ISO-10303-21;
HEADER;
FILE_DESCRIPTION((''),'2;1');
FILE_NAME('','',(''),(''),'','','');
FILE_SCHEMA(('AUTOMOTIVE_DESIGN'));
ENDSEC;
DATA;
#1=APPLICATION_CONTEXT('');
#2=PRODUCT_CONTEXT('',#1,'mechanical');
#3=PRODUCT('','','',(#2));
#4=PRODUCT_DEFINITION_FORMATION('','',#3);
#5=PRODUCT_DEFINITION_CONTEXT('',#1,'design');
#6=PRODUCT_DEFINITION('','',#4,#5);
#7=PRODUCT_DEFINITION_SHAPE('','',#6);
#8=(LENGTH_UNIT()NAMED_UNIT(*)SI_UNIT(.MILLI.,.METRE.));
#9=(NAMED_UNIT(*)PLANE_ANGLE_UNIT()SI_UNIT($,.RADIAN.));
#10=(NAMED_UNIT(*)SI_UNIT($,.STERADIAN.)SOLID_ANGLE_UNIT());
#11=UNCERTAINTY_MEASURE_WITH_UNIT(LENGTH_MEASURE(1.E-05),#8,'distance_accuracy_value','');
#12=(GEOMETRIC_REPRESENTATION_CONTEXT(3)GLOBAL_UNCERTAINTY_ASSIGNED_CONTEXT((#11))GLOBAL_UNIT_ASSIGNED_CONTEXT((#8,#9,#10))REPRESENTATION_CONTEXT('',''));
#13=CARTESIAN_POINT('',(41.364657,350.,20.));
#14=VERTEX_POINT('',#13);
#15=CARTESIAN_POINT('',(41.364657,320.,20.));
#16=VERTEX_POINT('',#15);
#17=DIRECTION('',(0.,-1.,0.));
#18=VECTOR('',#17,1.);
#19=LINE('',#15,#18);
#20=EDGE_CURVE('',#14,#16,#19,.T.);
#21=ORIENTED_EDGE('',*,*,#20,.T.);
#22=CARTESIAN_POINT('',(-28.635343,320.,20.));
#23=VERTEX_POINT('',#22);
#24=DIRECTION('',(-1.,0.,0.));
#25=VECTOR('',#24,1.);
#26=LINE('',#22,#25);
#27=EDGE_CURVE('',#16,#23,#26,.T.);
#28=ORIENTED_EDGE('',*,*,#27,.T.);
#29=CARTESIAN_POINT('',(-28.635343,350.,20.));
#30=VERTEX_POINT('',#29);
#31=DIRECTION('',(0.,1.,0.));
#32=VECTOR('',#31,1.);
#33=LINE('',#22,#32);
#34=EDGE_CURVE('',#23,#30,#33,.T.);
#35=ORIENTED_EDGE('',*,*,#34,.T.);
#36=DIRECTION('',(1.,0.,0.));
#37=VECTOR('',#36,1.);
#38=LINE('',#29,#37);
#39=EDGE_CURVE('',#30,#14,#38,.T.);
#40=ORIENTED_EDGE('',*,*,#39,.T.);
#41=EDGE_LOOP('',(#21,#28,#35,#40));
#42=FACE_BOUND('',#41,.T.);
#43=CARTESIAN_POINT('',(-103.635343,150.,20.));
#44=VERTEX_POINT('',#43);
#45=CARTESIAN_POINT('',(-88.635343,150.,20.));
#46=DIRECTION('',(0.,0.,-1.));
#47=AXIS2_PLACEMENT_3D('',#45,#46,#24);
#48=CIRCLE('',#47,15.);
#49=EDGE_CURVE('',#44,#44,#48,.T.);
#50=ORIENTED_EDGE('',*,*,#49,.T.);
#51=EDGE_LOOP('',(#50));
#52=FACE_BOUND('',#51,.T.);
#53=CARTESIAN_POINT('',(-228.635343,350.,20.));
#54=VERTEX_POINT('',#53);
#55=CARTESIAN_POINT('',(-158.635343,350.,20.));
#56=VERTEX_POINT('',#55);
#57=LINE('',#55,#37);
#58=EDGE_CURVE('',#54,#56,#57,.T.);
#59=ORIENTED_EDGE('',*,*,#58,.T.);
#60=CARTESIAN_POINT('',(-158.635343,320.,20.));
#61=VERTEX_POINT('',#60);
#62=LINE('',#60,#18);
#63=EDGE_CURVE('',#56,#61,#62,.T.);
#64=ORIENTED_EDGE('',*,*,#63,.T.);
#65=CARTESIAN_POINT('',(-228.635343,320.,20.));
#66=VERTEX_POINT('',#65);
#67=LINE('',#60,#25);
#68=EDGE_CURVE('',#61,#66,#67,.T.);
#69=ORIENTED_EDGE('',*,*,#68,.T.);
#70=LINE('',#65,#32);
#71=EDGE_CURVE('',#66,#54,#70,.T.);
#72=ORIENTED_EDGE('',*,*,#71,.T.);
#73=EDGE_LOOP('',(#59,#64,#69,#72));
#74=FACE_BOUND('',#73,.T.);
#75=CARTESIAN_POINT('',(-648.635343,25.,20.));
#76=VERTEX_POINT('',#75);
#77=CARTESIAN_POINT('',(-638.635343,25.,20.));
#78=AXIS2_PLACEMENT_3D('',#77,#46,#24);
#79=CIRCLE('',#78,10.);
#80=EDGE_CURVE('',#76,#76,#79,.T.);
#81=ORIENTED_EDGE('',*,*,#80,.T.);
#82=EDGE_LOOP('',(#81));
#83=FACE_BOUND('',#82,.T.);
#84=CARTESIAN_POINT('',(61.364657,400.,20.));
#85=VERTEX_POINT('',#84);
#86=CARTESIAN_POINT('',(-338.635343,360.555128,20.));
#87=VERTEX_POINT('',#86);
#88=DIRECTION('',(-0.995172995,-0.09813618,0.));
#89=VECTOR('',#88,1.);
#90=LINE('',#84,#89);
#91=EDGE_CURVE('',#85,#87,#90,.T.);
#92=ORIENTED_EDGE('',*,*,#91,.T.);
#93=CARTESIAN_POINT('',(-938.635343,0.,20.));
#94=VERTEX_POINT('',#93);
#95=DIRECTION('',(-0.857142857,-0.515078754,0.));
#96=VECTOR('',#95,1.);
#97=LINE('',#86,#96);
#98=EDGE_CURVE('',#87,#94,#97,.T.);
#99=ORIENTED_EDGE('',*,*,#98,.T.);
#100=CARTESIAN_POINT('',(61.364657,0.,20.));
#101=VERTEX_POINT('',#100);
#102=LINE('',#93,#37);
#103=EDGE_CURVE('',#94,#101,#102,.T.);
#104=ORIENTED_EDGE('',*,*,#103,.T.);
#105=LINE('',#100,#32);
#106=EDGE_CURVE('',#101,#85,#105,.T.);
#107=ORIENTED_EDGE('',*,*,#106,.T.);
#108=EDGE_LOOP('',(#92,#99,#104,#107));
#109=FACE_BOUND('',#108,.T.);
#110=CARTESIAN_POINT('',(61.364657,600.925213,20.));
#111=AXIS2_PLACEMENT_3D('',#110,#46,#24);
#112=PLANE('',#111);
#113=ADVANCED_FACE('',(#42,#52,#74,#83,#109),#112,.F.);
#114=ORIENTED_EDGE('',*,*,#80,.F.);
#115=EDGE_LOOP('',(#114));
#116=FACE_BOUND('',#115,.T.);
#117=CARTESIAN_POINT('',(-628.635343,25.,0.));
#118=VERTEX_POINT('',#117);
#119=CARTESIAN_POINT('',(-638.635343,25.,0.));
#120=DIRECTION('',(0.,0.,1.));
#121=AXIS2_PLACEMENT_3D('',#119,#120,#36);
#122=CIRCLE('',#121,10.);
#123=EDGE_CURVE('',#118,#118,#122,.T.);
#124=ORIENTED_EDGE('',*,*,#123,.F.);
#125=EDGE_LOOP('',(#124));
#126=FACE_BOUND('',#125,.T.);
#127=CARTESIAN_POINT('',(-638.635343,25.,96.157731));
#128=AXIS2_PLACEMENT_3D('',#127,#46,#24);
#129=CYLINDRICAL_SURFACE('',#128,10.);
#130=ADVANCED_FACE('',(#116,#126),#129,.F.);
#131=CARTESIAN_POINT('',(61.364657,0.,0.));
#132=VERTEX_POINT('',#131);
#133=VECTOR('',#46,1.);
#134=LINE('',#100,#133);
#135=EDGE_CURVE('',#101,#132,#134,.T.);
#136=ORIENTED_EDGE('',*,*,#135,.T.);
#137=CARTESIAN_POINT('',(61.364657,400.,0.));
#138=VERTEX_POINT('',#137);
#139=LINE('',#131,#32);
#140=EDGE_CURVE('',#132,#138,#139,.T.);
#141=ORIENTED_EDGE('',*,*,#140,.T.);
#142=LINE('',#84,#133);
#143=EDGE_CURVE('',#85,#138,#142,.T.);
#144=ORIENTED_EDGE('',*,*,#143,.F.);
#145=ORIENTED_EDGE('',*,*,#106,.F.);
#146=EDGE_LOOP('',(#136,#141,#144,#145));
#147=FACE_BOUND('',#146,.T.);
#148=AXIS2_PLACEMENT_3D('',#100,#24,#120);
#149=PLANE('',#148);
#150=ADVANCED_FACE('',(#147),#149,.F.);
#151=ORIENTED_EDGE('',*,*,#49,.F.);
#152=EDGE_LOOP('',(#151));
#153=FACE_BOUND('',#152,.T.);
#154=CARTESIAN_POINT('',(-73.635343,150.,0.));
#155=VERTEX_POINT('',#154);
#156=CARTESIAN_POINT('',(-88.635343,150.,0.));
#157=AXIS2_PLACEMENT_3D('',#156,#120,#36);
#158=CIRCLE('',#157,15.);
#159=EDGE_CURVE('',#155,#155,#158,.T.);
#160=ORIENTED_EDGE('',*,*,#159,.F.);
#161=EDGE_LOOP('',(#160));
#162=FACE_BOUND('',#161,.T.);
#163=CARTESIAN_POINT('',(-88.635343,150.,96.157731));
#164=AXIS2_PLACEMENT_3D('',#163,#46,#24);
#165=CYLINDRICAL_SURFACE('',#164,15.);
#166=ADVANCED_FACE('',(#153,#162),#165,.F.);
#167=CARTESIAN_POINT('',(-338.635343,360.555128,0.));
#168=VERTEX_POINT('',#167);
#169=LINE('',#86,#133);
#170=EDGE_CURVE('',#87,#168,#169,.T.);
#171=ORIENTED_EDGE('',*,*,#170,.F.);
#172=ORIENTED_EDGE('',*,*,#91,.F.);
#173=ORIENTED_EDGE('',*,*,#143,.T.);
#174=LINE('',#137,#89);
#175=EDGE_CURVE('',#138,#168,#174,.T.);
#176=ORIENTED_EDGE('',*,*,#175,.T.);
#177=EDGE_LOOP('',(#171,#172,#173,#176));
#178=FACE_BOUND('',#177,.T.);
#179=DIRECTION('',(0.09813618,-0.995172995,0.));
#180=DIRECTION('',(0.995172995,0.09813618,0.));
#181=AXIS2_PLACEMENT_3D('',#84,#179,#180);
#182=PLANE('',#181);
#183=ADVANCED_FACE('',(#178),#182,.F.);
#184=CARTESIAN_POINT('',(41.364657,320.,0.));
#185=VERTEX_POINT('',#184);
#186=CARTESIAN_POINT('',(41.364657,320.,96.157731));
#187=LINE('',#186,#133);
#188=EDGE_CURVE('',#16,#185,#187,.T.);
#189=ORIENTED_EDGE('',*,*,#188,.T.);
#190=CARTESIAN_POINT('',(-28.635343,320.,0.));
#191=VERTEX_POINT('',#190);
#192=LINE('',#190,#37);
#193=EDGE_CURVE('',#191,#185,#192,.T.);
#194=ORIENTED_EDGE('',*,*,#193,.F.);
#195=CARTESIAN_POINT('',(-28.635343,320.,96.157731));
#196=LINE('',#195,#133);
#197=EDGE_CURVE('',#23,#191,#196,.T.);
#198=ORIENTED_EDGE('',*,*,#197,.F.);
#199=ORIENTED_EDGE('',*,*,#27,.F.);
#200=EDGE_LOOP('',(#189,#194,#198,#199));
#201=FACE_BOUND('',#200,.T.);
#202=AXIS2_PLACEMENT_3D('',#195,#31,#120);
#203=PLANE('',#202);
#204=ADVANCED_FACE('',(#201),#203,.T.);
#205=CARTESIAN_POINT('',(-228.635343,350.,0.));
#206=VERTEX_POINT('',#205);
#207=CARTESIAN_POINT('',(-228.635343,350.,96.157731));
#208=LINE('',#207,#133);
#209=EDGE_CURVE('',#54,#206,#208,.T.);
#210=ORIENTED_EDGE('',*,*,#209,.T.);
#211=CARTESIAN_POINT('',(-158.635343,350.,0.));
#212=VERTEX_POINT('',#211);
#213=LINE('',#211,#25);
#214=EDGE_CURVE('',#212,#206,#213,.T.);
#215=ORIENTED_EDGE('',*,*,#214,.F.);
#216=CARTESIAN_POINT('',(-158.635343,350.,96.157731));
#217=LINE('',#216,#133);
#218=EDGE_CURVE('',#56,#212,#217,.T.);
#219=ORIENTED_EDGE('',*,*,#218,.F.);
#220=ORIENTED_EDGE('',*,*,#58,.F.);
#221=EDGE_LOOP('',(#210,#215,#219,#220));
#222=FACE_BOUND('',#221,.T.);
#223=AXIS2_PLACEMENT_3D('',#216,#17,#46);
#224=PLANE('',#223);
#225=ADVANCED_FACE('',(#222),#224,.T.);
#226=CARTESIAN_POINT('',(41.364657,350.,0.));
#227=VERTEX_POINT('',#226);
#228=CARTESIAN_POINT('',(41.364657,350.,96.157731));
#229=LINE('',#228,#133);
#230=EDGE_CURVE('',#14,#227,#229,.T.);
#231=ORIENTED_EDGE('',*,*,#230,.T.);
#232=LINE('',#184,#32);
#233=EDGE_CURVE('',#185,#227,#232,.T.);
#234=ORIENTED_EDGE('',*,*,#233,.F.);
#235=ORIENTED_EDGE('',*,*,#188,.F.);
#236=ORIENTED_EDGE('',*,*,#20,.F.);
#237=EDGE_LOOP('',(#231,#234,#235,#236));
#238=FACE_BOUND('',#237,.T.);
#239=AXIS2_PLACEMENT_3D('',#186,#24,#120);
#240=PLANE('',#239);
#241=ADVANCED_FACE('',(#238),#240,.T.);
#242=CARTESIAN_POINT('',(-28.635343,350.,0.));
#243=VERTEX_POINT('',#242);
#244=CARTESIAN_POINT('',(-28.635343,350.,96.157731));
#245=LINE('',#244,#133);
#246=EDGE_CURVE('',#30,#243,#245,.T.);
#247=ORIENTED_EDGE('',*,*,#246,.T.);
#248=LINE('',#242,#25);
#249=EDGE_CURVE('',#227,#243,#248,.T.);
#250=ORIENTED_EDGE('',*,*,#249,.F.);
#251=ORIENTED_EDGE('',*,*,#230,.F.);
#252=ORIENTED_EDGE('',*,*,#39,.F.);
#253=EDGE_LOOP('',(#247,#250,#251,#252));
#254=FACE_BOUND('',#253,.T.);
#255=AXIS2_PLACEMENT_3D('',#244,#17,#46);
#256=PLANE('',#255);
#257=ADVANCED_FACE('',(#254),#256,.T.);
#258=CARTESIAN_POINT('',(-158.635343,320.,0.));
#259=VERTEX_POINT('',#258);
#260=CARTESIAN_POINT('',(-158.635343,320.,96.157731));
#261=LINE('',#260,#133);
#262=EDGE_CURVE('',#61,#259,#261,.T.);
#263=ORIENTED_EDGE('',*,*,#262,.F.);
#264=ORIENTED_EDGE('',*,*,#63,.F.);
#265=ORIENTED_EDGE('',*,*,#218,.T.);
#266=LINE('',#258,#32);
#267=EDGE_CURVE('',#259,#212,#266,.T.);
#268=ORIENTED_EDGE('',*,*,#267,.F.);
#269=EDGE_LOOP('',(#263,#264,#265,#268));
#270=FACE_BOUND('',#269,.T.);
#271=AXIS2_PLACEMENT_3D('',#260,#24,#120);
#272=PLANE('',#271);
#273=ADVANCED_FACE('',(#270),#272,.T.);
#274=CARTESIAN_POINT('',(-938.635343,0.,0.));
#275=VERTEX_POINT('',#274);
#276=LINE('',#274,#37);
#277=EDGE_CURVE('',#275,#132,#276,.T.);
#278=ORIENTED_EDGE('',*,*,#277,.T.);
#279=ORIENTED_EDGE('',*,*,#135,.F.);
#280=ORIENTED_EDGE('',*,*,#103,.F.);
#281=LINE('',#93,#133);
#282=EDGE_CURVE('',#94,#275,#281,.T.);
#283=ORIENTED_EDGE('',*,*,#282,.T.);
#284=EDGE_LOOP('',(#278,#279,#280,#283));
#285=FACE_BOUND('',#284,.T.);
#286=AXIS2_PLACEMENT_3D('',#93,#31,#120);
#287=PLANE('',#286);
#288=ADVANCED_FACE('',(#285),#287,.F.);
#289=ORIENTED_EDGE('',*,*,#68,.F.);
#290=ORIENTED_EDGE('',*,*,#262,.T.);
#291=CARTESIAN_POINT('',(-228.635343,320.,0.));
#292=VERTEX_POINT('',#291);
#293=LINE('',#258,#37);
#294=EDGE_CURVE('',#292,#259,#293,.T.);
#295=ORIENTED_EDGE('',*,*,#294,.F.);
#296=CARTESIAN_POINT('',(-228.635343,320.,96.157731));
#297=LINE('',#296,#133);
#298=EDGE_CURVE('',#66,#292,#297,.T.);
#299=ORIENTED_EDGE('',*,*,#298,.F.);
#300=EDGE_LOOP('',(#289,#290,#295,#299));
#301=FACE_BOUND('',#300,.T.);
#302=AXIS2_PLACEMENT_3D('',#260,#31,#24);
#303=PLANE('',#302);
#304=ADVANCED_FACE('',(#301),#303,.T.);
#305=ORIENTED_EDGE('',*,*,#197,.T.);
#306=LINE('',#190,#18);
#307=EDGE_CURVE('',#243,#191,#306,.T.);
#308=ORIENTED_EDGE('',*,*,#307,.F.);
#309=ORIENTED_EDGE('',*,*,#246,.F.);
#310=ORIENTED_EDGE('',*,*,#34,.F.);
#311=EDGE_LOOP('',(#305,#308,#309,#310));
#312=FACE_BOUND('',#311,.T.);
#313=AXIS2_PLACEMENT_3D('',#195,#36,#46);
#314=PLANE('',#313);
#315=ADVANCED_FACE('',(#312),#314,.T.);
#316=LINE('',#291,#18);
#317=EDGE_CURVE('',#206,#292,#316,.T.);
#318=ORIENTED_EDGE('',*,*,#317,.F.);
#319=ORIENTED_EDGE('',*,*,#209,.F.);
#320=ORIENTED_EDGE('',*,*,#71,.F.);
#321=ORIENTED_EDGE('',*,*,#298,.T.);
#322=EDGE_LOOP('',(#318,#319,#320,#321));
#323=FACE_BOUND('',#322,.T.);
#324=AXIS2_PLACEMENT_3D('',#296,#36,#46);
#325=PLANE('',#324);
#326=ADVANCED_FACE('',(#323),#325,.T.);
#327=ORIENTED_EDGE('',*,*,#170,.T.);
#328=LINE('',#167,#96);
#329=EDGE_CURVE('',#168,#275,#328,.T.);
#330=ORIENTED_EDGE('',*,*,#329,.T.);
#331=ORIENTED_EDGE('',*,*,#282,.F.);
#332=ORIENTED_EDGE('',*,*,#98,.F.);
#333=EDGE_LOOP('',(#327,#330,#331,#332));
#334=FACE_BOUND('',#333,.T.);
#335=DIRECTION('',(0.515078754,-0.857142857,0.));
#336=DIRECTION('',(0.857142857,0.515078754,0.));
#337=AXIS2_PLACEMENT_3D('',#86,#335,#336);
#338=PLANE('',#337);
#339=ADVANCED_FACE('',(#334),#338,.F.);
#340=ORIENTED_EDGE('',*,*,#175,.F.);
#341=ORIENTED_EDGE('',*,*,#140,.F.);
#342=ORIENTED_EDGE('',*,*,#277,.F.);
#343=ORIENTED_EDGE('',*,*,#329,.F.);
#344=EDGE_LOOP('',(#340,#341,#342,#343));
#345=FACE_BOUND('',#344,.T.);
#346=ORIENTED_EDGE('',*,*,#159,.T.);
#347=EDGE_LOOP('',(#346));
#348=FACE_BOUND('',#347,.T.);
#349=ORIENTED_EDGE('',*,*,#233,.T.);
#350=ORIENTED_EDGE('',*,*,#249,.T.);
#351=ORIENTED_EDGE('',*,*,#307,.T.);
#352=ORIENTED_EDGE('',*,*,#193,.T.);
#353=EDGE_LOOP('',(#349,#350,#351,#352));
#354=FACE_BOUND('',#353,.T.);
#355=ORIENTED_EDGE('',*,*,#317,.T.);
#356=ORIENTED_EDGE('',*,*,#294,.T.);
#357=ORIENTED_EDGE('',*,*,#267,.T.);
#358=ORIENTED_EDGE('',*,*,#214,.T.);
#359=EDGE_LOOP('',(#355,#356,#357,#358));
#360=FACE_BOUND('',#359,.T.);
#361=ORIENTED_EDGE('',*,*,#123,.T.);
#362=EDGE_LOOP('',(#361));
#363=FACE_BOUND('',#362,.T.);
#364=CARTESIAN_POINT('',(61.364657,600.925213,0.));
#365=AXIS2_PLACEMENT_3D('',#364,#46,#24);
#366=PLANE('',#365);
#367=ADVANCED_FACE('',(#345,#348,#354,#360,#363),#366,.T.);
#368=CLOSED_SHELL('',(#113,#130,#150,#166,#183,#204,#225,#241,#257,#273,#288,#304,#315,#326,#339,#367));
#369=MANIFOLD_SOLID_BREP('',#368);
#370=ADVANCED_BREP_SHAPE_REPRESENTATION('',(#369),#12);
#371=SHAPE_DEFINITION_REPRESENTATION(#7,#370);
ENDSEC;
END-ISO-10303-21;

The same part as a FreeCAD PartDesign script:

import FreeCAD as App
import Part
import Sketcher

V = App.Vector


def add_polygon(sketch, points):
    """Adds a closed chain of lines whose ends are joined by coincident constraints."""
    first, n = sketch.GeometryCount, len(points)
    for a, b in zip(points, points[1:] + points[:1]):
        sketch.addGeometry(Part.LineSegment(App.Vector(*a, 0), App.Vector(*b, 0)), False)
    for i in range(n):
        sketch.addConstraint(Sketcher.Constraint("Coincident", first + i, 2, first + (i + 1) % n, 1))

doc = App.newDocument("Part")
body = doc.addObject("PartDesign::Body", "Body")

# Sketch on XY plane
sketch1 = body.newObject("Sketcher::SketchObject", "Sketch")
sketch1.AttachmentSupport = (doc.getObject("XY_Plane"), [""])
sketch1.MapMode = "FlatFace"
add_polygon(sketch1, [(-938.635343, 0), (61.364657, 0), (61.364657, 400), (-338.635343, 360.555128)])  # lines 0-3
sketch1.addConstraint([
    Sketcher.Constraint("Horizontal", 0),
    Sketcher.Constraint("Vertical", 1),
    Sketcher.Constraint("PointOnObject", 0, 2, -1),
    Sketcher.Constraint("DistanceX", 0, 1, 0, 2, 1000.0),
    Sketcher.Constraint("DistanceY", 1, 1, 1, 2, 400.0),
    Sketcher.Constraint("Distance", 3, 700.0),
    Sketcher.Constraint("DistanceX", 2, 2, 1, 2, 400.0),
    Sketcher.Constraint("DistanceX", -1, 1, 0, 2, 61.364657),
])
pad1 = body.newObject("PartDesign::Pad", "Pad")
pad1.Profile = sketch1
pad1.Length = 20

# Sketch on XY plane
sketch2 = body.newObject("Sketcher::SketchObject", "Sketch001")
sketch2.AttachmentSupport = (doc.getObject("XY_Plane"), [""])
sketch2.MapMode = "FlatFace"
sketch2.addGeometry(Part.Circle(V(-88.635343, 150, 0), V(0, 0, 1), 15), False)  # 0
sketch2.addGeometry(Part.Circle(V(-638.635343, 25, 0), V(0, 0, 1), 10), False)  # 1
add_polygon(sketch2, [(-228.635343, 350), (-228.635343, 320), (-158.635343, 320), (-158.635343, 350)])  # lines 2-5
add_polygon(sketch2, [(-28.635343, 350), (-28.635343, 320), (41.364657, 320), (41.364657, 350)])  # lines 6-9
sketch2.addConstraint([
    Sketcher.Constraint("Vertical", 2),
    Sketcher.Constraint("Horizontal", 3),
    Sketcher.Constraint("Vertical", 4),
    Sketcher.Constraint("Horizontal", 5),
    Sketcher.Constraint("Vertical", 6),
    Sketcher.Constraint("Horizontal", 7),
    Sketcher.Constraint("Vertical", 8),
    Sketcher.Constraint("Horizontal", 9),
    Sketcher.Constraint("Horizontal", 3, 2, 6, 2),
    Sketcher.Constraint("Horizontal", 5, 2, 8, 2),
    Sketcher.Constraint("Equal", 5, 7),
    Sketcher.Constraint("Diameter", 0, 30.0),
    Sketcher.Constraint("Diameter", 1, 20.0),
    Sketcher.Constraint("DistanceX", 3, 1, 3, 2, 70.0),
    Sketcher.Constraint("DistanceY", 2, 2, 2, 1, 30.0),
    Sketcher.Constraint("DistanceY", -1, 1, 0, 3, 150.0),
    Sketcher.Constraint("DistanceY", -1, 1, 1, 3, 25.0),
    Sketcher.Constraint("DistanceY", -1, 1, 2, 2, 320.0),
    Sketcher.Constraint("DistanceX", 1, 3, 0, 3, 550.0),
    Sketcher.Constraint("DistanceX", 2, 2, 0, 3, 140.0),
    Sketcher.Constraint("DistanceX", 3, 2, 6, 2, 130.0),
    Sketcher.Constraint("DistanceX", 0, 3, -1, 1, 88.635343),
])
pocket1 = body.newObject("PartDesign::Pocket", "Pocket")
pocket1.Profile = sketch2
pocket1.Length = 20
pocket1.Reversed = True

doc.recompute()
